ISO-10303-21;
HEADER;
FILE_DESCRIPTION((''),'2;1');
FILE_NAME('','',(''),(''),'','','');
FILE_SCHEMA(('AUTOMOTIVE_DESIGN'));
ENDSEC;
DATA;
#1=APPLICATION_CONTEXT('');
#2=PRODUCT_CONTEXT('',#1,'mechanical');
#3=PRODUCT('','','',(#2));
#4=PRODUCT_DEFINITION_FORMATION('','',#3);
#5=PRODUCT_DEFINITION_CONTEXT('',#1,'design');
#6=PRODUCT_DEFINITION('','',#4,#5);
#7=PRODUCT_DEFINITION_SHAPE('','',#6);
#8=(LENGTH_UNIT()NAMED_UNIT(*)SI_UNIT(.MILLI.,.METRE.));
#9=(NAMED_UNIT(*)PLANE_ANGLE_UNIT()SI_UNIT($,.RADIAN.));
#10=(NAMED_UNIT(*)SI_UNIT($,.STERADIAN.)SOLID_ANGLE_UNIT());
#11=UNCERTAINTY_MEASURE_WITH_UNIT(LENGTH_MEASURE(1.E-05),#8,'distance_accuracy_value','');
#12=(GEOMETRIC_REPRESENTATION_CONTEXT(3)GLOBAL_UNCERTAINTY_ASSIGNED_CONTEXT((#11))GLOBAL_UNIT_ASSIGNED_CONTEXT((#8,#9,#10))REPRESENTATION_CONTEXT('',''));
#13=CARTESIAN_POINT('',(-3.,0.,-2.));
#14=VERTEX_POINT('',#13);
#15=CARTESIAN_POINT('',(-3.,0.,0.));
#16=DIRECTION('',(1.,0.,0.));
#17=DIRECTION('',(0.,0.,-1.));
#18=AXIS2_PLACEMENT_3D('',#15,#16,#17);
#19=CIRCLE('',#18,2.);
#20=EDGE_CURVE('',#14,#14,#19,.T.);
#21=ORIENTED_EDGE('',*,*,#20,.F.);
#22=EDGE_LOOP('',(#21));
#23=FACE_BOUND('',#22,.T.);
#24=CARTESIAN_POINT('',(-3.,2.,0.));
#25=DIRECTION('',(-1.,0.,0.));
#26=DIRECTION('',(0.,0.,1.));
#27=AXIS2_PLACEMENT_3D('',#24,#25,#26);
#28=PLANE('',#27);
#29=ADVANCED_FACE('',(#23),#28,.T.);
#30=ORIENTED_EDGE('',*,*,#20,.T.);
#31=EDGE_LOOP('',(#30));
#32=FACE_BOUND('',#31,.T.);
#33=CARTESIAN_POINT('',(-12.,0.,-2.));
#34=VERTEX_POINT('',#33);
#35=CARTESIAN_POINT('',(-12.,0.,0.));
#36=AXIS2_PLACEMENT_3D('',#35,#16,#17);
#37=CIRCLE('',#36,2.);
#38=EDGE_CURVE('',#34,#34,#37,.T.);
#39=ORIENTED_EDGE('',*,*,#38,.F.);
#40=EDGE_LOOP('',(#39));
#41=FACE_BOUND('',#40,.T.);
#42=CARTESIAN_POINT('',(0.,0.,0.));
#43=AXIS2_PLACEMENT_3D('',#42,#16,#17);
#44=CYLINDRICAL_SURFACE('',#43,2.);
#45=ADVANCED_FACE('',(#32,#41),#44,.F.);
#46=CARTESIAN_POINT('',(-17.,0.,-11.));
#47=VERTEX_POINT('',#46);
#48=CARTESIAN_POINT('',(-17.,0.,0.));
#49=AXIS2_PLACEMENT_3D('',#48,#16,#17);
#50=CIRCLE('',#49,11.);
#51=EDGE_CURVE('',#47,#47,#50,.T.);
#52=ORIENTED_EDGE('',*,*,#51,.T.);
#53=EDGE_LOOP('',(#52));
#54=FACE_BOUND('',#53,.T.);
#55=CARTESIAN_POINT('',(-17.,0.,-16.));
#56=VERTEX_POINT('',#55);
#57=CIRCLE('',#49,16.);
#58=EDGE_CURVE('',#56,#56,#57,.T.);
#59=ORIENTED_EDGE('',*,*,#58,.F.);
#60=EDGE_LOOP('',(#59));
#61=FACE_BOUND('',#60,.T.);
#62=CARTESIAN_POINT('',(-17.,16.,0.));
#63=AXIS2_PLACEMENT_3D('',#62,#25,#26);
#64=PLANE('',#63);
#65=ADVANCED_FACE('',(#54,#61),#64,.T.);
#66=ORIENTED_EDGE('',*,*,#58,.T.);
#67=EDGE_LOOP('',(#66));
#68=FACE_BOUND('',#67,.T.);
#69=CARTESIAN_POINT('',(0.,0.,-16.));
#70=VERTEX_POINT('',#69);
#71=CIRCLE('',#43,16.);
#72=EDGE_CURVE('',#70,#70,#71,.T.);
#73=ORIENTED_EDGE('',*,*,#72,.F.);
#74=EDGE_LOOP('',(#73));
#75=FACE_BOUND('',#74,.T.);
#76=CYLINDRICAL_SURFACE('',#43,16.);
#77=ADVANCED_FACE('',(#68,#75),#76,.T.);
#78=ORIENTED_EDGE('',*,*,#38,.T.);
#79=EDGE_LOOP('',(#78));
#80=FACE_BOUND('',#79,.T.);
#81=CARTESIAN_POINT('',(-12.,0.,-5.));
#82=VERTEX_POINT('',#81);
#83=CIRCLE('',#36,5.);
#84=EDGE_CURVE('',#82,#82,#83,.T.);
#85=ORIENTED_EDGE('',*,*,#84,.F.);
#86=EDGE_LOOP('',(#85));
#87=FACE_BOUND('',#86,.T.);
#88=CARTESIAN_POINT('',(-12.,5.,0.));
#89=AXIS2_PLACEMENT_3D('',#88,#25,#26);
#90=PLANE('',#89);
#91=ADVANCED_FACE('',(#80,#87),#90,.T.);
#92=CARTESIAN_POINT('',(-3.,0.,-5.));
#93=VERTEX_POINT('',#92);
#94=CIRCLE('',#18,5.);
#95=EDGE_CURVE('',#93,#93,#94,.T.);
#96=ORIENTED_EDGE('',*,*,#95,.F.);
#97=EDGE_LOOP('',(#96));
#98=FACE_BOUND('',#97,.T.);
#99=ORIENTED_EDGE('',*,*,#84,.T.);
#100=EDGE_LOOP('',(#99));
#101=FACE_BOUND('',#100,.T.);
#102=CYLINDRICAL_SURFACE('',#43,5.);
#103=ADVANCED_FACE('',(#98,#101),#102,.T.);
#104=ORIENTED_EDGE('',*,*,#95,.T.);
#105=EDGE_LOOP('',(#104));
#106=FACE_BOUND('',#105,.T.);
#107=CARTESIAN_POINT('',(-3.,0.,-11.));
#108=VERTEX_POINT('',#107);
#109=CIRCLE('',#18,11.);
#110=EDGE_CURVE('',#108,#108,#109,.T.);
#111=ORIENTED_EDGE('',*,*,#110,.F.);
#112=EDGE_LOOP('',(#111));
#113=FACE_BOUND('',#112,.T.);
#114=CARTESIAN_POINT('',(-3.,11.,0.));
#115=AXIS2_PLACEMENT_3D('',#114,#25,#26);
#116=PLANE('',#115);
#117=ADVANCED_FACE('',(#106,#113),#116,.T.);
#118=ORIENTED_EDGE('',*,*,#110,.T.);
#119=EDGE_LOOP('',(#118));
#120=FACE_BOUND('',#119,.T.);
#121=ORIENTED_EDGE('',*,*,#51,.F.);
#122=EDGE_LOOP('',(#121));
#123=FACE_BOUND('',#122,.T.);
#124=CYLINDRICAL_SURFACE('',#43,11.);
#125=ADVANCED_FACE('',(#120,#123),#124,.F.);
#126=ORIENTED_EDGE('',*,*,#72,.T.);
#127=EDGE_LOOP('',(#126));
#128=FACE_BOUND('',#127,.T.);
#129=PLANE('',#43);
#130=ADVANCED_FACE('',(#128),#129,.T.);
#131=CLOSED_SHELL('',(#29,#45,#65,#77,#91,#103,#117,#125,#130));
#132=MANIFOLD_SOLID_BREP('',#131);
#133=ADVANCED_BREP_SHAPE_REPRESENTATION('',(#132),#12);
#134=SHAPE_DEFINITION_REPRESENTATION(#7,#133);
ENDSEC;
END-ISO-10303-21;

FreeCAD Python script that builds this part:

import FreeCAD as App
import Part
import Sketcher

V = App.Vector

doc = App.newDocument("Part")
params = doc.addObject("Spreadsheet::Sheet", "Params")
for row, (alias, value) in enumerate([
    ("sketch1_width", "17 mm"),
    ("sketch1_width2", "14 mm"),
    ("sketch1_width3", "9 mm"),
    ("sketch1_height", "16 mm"),
    ("sketch1_height2", "5 mm"),
    ("revolution_angle", "360 deg"),
], start=1):
    params.set(f"A{row}", alias)
    params.set(f"B{row}", "=" + value)
    params.setAlias(f"B{row}", alias)

body = doc.addObject("PartDesign::Body", "Body")

sketch1 = body.newObject("Sketcher::SketchObject", "Sketch")
sketch1.AttachmentSupport = (doc.getObject("XY_Plane"), [""])
sketch1.MapMode = "FlatFace"
sketch1.addGeometry([
    Part.LineSegment(V(0, 0, 0), V(0, 16, 0)),
    Part.LineSegment(V(0, 16, 0), V(-17, 16, 0)),
    Part.LineSegment(V(-17, 16, 0), V(-17, 11, 0)),
    Part.LineSegment(V(-17, 11, 0), V(-3, 11, 0)),
    Part.LineSegment(V(-3, 11, 0), V(-3, 5, 0)),
    Part.LineSegment(V(-3, 5, 0), V(-12, 5, 0)),
    Part.LineSegment(V(-12, 5, 0), V(-12, 2, 0)),
    Part.LineSegment(V(-12, 2, 0), V(-3, 2, 0)),
    Part.LineSegment(V(-3, 2, 0), V(-3, 0, 0)),
    Part.LineSegment(V(-3, 0, 0), V(0, 0, 0)),
], False)
sketch1.addConstraint([
    Sketcher.Constraint("Coincident", 0, 2, 1, 1),
    Sketcher.Constraint("Coincident", 1, 2, 2, 1),
    Sketcher.Constraint("Coincident", 2, 2, 3, 1),
    Sketcher.Constraint("Coincident", 3, 2, 4, 1),
    Sketcher.Constraint("Coincident", 4, 2, 5, 1),
    Sketcher.Constraint("Coincident", 5, 2, 6, 1),
    Sketcher.Constraint("Coincident", 6, 2, 7, 1),
    Sketcher.Constraint("Coincident", 7, 2, 8, 1),
    Sketcher.Constraint("Coincident", 8, 2, 9, 1),
    Sketcher.Constraint("Coincident", 9, 2, 0, 1),
    Sketcher.Constraint("Vertical", 0),
    Sketcher.Constraint("Horizontal", 1),
    Sketcher.Constraint("Vertical", 2),
    Sketcher.Constraint("Horizontal", 3),
    Sketcher.Constraint("Vertical", 4),
    Sketcher.Constraint("Horizontal", 5),
    Sketcher.Constraint("Vertical", 6),
    Sketcher.Constraint("Horizontal", 7),
    Sketcher.Constraint("Vertical", 8),
    Sketcher.Constraint("Horizontal", 9),
    Sketcher.Constraint("Coincident", 9, 2, -1, 1),
    Sketcher.Constraint("Vertical", 4, 2, 7, 2),
    Sketcher.Constraint("Equal", 9, 6),
    Sketcher.Constraint("DistanceX", 1, 2, 1, 1, 17.0),
    Sketcher.Constraint("DistanceX", 3, 1, 3, 2, 14.0),
    Sketcher.Constraint("DistanceX", 5, 2, 5, 1, 9.0),
    Sketcher.Constraint("DistanceY", 0, 1, 0, 2, 16.0),
    Sketcher.Constraint("DistanceY", 2, 2, 2, 1, 5.0),
    Sketcher.Constraint("DistanceY", 4, 2, 4, 1, 6.0),
])
sketch1.setExpression("Constraints[23]", "Params.sketch1_width")
sketch1.setExpression("Constraints[24]", "Params.sketch1_width2")
sketch1.setExpression("Constraints[25]", "Params.sketch1_width3")
sketch1.setExpression("Constraints[26]", "Params.sketch1_height")
sketch1.setExpression("Constraints[27]", "Params.sketch1_height2")
revolution = body.newObject("PartDesign::Revolution", "Revolution")
revolution.Profile = sketch1
revolution.ReferenceAxis = (sketch1, ["H_Axis"])
revolution.setExpression("Angle", "Params.revolution_angle")

doc.recompute()
